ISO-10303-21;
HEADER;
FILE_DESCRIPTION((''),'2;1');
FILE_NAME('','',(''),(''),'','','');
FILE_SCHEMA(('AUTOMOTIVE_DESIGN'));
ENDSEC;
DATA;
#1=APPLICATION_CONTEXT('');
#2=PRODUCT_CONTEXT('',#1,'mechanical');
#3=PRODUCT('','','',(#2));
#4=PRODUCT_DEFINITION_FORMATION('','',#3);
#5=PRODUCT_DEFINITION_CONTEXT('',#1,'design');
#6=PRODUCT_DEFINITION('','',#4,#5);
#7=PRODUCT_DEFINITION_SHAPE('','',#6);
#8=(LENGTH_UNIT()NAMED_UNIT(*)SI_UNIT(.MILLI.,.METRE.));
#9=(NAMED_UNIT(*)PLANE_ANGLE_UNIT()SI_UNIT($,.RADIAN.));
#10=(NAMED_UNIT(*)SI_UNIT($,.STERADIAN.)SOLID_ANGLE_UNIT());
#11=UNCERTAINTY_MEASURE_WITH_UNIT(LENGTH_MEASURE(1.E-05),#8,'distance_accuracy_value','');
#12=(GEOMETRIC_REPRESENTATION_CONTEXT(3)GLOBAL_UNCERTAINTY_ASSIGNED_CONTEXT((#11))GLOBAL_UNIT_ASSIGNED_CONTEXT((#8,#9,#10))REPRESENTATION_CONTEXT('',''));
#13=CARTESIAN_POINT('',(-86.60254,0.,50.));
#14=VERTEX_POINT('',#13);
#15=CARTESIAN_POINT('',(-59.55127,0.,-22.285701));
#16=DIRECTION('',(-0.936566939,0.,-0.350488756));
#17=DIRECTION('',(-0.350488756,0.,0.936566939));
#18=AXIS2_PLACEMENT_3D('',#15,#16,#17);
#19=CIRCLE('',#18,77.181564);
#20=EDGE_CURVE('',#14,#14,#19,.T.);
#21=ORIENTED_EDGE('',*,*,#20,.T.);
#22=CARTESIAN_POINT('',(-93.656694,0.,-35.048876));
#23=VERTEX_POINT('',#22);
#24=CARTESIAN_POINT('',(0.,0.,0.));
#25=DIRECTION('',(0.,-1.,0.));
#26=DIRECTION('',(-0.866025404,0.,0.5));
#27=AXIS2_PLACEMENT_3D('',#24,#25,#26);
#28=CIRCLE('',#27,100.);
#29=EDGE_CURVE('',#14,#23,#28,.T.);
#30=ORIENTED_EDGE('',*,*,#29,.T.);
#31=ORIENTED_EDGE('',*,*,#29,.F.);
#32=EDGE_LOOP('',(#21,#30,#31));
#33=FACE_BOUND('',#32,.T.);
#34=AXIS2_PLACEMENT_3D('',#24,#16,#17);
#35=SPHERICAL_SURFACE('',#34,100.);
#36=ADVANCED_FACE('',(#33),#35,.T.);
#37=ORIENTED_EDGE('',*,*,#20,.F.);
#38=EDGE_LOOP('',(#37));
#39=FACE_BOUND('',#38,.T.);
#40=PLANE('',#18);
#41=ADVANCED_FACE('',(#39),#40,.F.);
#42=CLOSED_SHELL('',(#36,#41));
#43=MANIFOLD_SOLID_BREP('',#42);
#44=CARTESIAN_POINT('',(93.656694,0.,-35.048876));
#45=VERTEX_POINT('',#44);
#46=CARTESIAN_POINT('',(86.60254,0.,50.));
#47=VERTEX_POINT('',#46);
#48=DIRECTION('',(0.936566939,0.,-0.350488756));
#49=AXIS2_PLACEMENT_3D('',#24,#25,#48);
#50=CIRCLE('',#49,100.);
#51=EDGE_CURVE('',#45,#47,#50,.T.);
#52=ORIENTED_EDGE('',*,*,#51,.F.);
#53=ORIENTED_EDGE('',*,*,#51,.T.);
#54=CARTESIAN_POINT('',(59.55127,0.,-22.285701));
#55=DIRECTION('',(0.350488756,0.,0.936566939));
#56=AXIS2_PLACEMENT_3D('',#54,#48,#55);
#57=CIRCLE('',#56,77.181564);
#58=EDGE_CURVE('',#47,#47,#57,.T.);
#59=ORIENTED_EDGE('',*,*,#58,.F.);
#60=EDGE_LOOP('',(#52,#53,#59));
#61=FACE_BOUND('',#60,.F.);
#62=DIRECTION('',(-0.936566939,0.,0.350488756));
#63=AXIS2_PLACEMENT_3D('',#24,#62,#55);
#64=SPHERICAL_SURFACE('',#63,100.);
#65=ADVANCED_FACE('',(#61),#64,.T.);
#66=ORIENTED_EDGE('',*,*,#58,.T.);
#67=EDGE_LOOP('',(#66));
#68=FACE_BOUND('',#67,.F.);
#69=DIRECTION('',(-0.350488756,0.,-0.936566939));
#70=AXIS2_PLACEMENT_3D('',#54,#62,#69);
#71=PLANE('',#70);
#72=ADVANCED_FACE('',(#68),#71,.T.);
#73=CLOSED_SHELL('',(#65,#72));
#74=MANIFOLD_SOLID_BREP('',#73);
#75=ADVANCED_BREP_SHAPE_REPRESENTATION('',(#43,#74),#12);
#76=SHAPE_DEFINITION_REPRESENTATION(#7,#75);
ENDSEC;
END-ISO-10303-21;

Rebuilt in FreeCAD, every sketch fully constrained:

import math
import FreeCAD as App
import Part
import Sketcher
Q = App.Units.Quantity

doc = App.newDocument("Part")
params = doc.addObject("Spreadsheet::Sheet", "Params")
for row, (alias, value) in enumerate([
    ("sketch1_radius", "100 mm"),
    ("revolution_angle", "360 deg"),
    ("sketch2_radius", "100 mm"),
    ("revolution2_angle", "360 deg"),
], start=1):
    params.set(f"A{row}", alias)
    params.set(f"B{row}", "=" + value)
    params.setAlias(f"B{row}", alias)

body = doc.addObject("PartDesign::Body", "Body")

sketch1 = doc.addObject("Sketcher::SketchObject", "Sketch")
body.addObject(sketch1)
sketch1.AttachmentSupport = (doc.XZ_Plane, [""])
sketch1.MapMode = "FlatFace"
sketch1.addGeometry([
    Part.LineSegment(App.Vector(87, 50, 0), App.Vector(60, -22, 0)),
    Part.LineSegment(App.Vector(60, -22, 0), App.Vector(94, -35, 0)),
    Part.ArcOfCircle(Part.Circle(App.Vector(0, 0, 0), App.Vector(0, 0, 1), 100), math.radians(-21), math.radians(30)),
], False)
sketch1.addGeometry(Part.LineSegment(App.Vector(0, 0, 0), App.Vector(94, -35, 0)), True)
sketch1.addConstraint([
    Sketcher.Constraint("Coincident", 0, 2, 1, 1),
    Sketcher.Constraint("Coincident", 1, 2, 2, 1),
    Sketcher.Constraint("Coincident", 2, 2, 0, 1),
    Sketcher.Constraint("Coincident", 2, 3, -1, 1),
    Sketcher.Constraint("Coincident", 3, 1, -1, 1),
    Sketcher.Constraint("Coincident", 3, 2, 1, 2),
    Sketcher.Constraint("Perpendicular", 0, 1),
    Sketcher.Constraint("Parallel", 1, 3),
    Sketcher.Constraint("Radius", 2, Q("100 mm")),
    Sketcher.Constraint("DistanceY", -1, 1, 2, 2, Q("50 mm")),
    Sketcher.Constraint("DistanceY", 0, 2, -1, 1, Q("22.285701 mm")),
])
sketch1.setExpression("Constraints[8]", "Params.sketch1_radius")
revolution = doc.addObject("PartDesign::Revolution", "Revolution")
body.addObject(revolution)
revolution.Profile = sketch1
revolution.ReferenceAxis = (sketch1, ["Axis0"])
revolution.setExpression("Angle", "Params.revolution_angle")
body2 = doc.addObject("PartDesign::Body", "Body001")

sketch2 = doc.addObject("Sketcher::SketchObject", "Sketch001")
body2.addObject(sketch2)
sketch2.AttachmentSupport = (doc.getObject("XZ_Plane001"), [""])
sketch2.MapMode = "FlatFace"
sketch2.addGeometry([
    Part.LineSegment(App.Vector(-94, -35, 0), App.Vector(-60, -22, 0)),
    Part.LineSegment(App.Vector(-60, -22, 0), App.Vector(-87, 50, 0)),
    Part.ArcOfCircle(Part.Circle(App.Vector(0, 0, 0), App.Vector(0, 0, 1), 100), math.radians(150), math.radians(201)),
], False)
sketch2.addGeometry(Part.LineSegment(App.Vector(0, 0, 0), App.Vector(-94, -35, 0)), True)
sketch2.addConstraint([
    Sketcher.Constraint("Coincident", 0, 2, 1, 1),
    Sketcher.Constraint("Coincident", 1, 2, 2, 1),
    Sketcher.Constraint("Coincident", 2, 2, 0, 1),
    Sketcher.Constraint("Coincident", 2, 3, -1, 1),
    Sketcher.Constraint("Coincident", 3, 1, -1, 1),
    Sketcher.Constraint("Coincident", 3, 2, 2, 2),
    Sketcher.Constraint("Perpendicular", 0, 1),
    Sketcher.Constraint("Perpendicular", 1, 3),
    Sketcher.Constraint("Radius", 2, Q("100 mm")),
    Sketcher.Constraint("DistanceY", -1, 1, 1, 2, Q("50 mm")),
    Sketcher.Constraint("DistanceY", 0, 2, -1, 1, Q("22.285701 mm")),
])
sketch2.setExpression("Constraints[8]", "Params.sketch2_radius")
revolution2 = doc.addObject("PartDesign::Revolution", "Revolution001")
body2.addObject(revolution2)
revolution2.Profile = sketch2
revolution2.ReferenceAxis = (sketch2, ["Axis0"])
revolution2.setExpression("Angle", "Params.revolution2_angle")

doc.recompute()
